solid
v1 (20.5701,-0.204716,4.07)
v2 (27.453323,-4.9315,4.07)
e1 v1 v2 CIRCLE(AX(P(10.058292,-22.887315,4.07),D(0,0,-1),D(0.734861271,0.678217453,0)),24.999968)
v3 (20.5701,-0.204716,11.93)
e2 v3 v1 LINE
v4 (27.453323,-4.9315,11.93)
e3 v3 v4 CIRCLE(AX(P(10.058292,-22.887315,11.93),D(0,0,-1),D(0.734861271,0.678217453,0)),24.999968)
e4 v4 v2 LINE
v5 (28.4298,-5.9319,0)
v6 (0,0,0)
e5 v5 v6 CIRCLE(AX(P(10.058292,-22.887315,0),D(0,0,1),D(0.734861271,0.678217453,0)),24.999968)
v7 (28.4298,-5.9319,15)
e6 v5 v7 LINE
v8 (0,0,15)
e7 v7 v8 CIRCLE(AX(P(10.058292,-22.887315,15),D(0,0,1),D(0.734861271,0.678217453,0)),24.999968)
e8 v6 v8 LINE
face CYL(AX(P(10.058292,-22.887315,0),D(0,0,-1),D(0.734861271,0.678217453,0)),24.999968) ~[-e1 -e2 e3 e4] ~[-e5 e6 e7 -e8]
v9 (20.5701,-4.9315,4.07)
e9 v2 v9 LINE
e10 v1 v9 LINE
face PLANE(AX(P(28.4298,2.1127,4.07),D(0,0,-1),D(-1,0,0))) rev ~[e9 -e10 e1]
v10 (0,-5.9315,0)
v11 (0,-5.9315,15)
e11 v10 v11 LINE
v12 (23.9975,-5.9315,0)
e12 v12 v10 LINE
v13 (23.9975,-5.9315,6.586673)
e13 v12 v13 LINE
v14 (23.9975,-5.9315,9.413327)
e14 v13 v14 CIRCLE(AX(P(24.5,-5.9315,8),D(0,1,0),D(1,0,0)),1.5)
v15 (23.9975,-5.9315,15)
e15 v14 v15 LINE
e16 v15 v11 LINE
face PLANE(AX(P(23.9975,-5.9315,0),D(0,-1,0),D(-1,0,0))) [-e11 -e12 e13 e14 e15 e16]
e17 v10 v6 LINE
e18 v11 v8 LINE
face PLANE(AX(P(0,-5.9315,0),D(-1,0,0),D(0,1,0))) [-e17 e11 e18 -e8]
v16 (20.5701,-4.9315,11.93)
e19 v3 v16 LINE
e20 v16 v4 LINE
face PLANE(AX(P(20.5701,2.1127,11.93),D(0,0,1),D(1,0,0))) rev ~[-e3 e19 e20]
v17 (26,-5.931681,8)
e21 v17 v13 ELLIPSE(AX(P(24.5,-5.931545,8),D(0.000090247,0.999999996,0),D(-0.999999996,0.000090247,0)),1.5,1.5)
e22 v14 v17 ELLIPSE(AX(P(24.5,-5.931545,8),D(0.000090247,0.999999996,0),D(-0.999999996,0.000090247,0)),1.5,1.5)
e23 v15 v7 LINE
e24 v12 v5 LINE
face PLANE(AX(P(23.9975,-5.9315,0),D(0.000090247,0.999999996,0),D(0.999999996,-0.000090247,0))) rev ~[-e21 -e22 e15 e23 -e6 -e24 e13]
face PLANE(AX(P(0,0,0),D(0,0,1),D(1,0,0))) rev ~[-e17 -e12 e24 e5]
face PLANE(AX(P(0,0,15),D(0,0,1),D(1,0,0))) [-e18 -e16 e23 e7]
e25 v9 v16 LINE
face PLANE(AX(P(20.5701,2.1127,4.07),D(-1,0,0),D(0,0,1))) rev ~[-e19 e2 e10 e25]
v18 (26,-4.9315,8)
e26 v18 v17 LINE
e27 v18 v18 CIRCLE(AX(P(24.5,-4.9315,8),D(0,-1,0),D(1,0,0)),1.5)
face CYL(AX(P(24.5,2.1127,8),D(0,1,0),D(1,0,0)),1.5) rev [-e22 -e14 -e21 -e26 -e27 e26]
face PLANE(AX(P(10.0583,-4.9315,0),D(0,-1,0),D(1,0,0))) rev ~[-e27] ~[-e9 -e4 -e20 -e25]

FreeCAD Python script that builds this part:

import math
import FreeCAD as App
import Part
import Sketcher

V = App.Vector
Q = App.Units.Quantity


def add_polygon(sketch, points):
    """Adds a closed chain of lines whose ends are joined by coincident constraints."""
    first, n = sketch.GeometryCount, len(points)
    for a, b in zip(points, points[1:] + points[:1]):
        sketch.addGeometry(Part.LineSegment(App.Vector(*a, 0), App.Vector(*b, 0)), False)
    for i in range(n):
        sketch.addConstraint(Sketcher.Constraint("Coincident", first + i, 2, first + (i + 1) % n, 1))

doc = App.newDocument("Part")
body = doc.addObject("PartDesign::Body", "Body")

# Sketch on XY plane
sketch1 = body.newObject("Sketcher::SketchObject", "Sketch")
sketch1.AttachmentSupport = (doc.getObject("XY_Plane"), [""])
sketch1.MapMode = "FlatFace"
sketch1.addGeometry([
    Part.LineSegment(V(24, -5.9, 0), V(28.4, -5.9, 0)),
    Part.ArcOfCircle(Part.Circle(V(10.1, -22.9, 0), V(0, 0, 1), 25), math.radians(43), math.radians(114)),
    Part.LineSegment(V(0, 0, 0), V(0, -5.9, 0)),
    Part.LineSegment(V(0, -5.9, 0), V(24, -5.9, 0)),
], False)
sketch1.addConstraint([
    Sketcher.Constraint("Coincident", 0, 2, 1, 1),
    Sketcher.Constraint("Coincident", 1, 2, 2, 1),
    Sketcher.Constraint("Coincident", 2, 2, 3, 1),
    Sketcher.Constraint("Coincident", 3, 2, 0, 1),
    Sketcher.Constraint("Vertical", 2),
    Sketcher.Constraint("Horizontal", 3),
    Sketcher.Constraint("Coincident", 1, 2, -1, 1),
    Sketcher.Constraint("Radius", 1, Q("25 mm")),
    Sketcher.Constraint("DistanceX", 3, 1, 3, 2, Q("23.9975 mm")),
    Sketcher.Constraint("DistanceY", 2, 2, 2, 1, Q("5.9315 mm")),
    Sketcher.Constraint("DistanceY", 0, 2, -1, 1, Q("5.932 mm")),
    Sketcher.Constraint("Distance", 0, Q("4.4323 mm")),
])
pad1 = body.newObject("PartDesign::Pad", "Pad")
pad1.Profile = sketch1
pad1.Length = 15

# Sketch on XZ plane
sketch2 = body.newObject("Sketcher::SketchObject", "Sketch001")
sketch2.AttachmentSupport = (doc.getObject("XZ_Plane"), [""])
sketch2.MapMode = "FlatFace"
sketch2.AttachmentOffset = App.Placement(V(0, 0, -2.1127), App.Rotation())
sketch2.addGeometry(Part.Circle(V(24.5, 8, 0), V(0, 0, 1), 1.5), False)
sketch2.addConstraint([
    Sketcher.Constraint("Diameter", 0, Q("3 mm")),
    Sketcher.Constraint("DistanceY", -1, 1, 0, 3, Q("8 mm")),
    Sketcher.Constraint("DistanceX", -1, 1, 0, 3, Q("24.5 mm")),
])
pocket1 = body.newObject("PartDesign::Pocket", "Pocket")
pocket1.Profile = sketch2
pocket1.Length = 10.2942
pocket1.Reversed = True

# Sketch on XZ plane
sketch3 = body.newObject("Sketcher::SketchObject", "Sketch002")
sketch3.AttachmentSupport = (doc.getObject("XZ_Plane"), [""])
sketch3.MapMode = "FlatFace"
sketch3.AttachmentOffset = App.Placement(V(0, 0, -2.1127), App.Rotation())
add_polygon(sketch3, [(20.6, 4.1), (28.4, 4.1), (28.4, 11.9), (20.6, 11.9)])  # lines 0-3
sketch3.addGeometry(Part.Circle(V(24.5, 8, 0), V(0, 0, 1), 1.5), False)  # 4
sketch3.addConstraint([
    Sketcher.Constraint("Horizontal", 0),
    Sketcher.Constraint("Vertical", 1),
    Sketcher.Constraint("Horizontal", 2),
    Sketcher.Constraint("Vertical", 3),
    Sketcher.Constraint("Diameter", 4, Q("3 mm")),
    Sketcher.Constraint("DistanceY", 1, 1, 1, 2, Q("7.86 mm")),
    Sketcher.Constraint("DistanceX", 0, 1, 0, 2, Q("7.8597 mm")),
    Sketcher.Constraint("DistanceY", -1, 1, 4, 3, Q("8 mm")),
    Sketcher.Constraint("DistanceX", -1, 1, 4, 3, Q("24.5 mm")),
    Sketcher.Constraint("DistanceY", -1, 1, 0, 2, Q("4.07 mm")),
    Sketcher.Constraint("DistanceX", -1, 1, 2, 2, Q("20.57 mm")),
])
pocket2 = body.newObject("PartDesign::Pocket", "Pocket001")
pocket2.Profile = sketch3
pocket2.Length = 7.0442
pocket2.Reversed = True

doc.recompute()
